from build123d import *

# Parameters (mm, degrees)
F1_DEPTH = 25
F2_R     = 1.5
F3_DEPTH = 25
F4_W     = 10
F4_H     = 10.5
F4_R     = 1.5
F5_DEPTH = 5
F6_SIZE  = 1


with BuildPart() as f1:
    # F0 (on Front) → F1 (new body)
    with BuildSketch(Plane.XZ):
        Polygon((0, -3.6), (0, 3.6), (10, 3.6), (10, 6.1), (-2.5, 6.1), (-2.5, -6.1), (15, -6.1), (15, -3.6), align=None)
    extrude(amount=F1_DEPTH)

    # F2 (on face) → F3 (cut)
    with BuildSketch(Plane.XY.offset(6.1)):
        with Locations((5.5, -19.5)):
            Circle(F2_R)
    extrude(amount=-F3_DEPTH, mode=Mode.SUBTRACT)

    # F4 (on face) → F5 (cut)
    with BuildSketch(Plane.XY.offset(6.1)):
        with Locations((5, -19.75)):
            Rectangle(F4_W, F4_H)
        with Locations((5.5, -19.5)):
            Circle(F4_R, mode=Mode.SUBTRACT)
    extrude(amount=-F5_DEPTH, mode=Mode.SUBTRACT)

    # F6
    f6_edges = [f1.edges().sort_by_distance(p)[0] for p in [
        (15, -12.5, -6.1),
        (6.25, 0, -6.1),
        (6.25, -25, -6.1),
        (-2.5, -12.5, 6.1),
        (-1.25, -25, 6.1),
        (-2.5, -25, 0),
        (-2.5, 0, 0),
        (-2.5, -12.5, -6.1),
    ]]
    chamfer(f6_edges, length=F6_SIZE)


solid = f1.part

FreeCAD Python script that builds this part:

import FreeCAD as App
import Part
import Sketcher
Q = App.Units.Quantity


def edges_at(feature, points):
    """Names of the edges that pass closest to the given points."""
    edges = feature.Shape.Edges
    near = lambda p: min(range(len(edges)), key=lambda i: edges[i].distToShape(Part.Vertex(*p))[0])
    return sorted({f"Edge{near(p) + 1}" for p in points})


def add_polygon(sketch, points):
    """Adds a closed chain of lines whose ends are joined by coincident constraints."""
    first, n = sketch.GeometryCount, len(points)
    for a, b in zip(points, points[1:] + points[:1]):
        sketch.addGeometry(Part.LineSegment(App.Vector(*a, 0), App.Vector(*b, 0)), False)
    for i in range(n):
        sketch.addConstraint(Sketcher.Constraint("Coincident", first + i, 2, first + (i + 1) % n, 1))

doc = App.newDocument("Part")
params = doc.addObject("Spreadsheet::Sheet", "Params")
for row, (alias, value) in enumerate([
    ("sketch1_width", "10 mm"),
    ("sketch1_width2", "15 mm"),
    ("sketch1_width3", "12.5 mm"),
    ("sketch1_height", "7.2 mm"),
    ("sketch1_height2", "2.5 mm"),
    ("pad1_length", "25 mm"),
    ("sketch2_diameter", "3 mm"),
    ("pocket1_length", "25 mm"),
    ("sketch3_diameter", "3 mm"),
    ("sketch3_width", "10 mm"),
    ("sketch3_height", "10.5 mm"),
    ("pocket2_length", "5 mm"),
    ("chamfer_size", "1 mm"),
], start=1):
    params.set(f"A{row}", alias)
    params.set(f"B{row}", "=" + value)
    params.setAlias(f"B{row}", alias)

body = doc.addObject("PartDesign::Body", "Body")

# Sketch on XZ plane
sketch1 = body.newObject("Sketcher::SketchObject", "Sketch")
sketch1.AttachmentSupport = (doc.getObject("XZ_Plane"), [""])
sketch1.MapMode = "FlatFace"
add_polygon(sketch1, [(0, -3.6), (0, 3.6), (10, 3.6), (10, 6.1), (-2.5, 6.1), (-2.5, -6.1), (15, -6.1), (15, -3.6)])  # lines 0-7
sketch1.addConstraint(Sketcher.Constraint("Vertical", 0))
sketch1.addConstraint(Sketcher.Constraint("Horizontal", 1))
sketch1.addConstraint(Sketcher.Constraint("Vertical", 2))
sketch1.addConstraint(Sketcher.Constraint("Horizontal", 3))
sketch1.addConstraint(Sketcher.Constraint("Vertical", 4))
sketch1.addConstraint(Sketcher.Constraint("Horizontal", 5))
sketch1.addConstraint(Sketcher.Constraint("Vertical", 6))
sketch1.addConstraint(Sketcher.Constraint("Horizontal", 7))
sketch1.addConstraint(Sketcher.Constraint("Symmetric", 0, 2, 7, 2, -1, 1))
sketch1.addConstraint(Sketcher.Constraint("Equal", 2, 6))
sketch1.addConstraint(Sketcher.Constraint("DistanceX", 1, 1, 1, 2, Q("10 mm")))
sketch1.addConstraint(Sketcher.Constraint("DistanceX", 7, 2, 7, 1, Q("15 mm")))
sketch1.addConstraint(Sketcher.Constraint("DistanceX", 3, 2, 3, 1, Q("12.5 mm")))
sketch1.addConstraint(Sketcher.Constraint("DistanceY", 0, 1, 0, 2, Q("7.2 mm")))
sketch1.addConstraint(Sketcher.Constraint("DistanceY", 2, 1, 2, 2, Q("2.5 mm")))
sketch1.setExpression("Constraints[18]", "Params.sketch1_width")
sketch1.setExpression("Constraints[19]", "Params.sketch1_width2")
sketch1.setExpression("Constraints[20]", "Params.sketch1_width3")
sketch1.setExpression("Constraints[21]", "Params.sketch1_height")
sketch1.setExpression("Constraints[22]", "Params.sketch1_height2")
pad1 = body.newObject("PartDesign::Pad", "Pad")
pad1.Profile = sketch1
pad1.setExpression("Length", "Params.pad1_length")

# Sketch on XY plane
sketch2 = body.newObject("Sketcher::SketchObject", "Sketch001")
sketch2.AttachmentSupport = (doc.getObject("XY_Plane"), [""])
sketch2.MapMode = "FlatFace"
sketch2.AttachmentOffset = App.Placement(App.Vector(0, 0, 6.1), App.Rotation())
sketch2.addGeometry(Part.Circle(App.Vector(5.5, -19.5, 0), App.Vector(0, 0, 1), 1.5), False)
sketch2.addConstraint(Sketcher.Constraint("Diameter", 0, Q("3 mm")))
sketch2.addConstraint(Sketcher.Constraint("DistanceX", -1, 1, 0, 3, Q("5.5 mm")))
sketch2.addConstraint(Sketcher.Constraint("DistanceY", 0, 3, -1, 1, Q("19.5 mm")))
sketch2.setExpression("Constraints[0]", "Params.sketch2_diameter")
pocket1 = body.newObject("PartDesign::Pocket", "Pocket")
pocket1.Profile = sketch2
pocket1.setExpression("Length", "Params.pocket1_length")

# Sketch on XY plane
sketch3 = body.newObject("Sketcher::SketchObject", "Sketch002")
sketch3.AttachmentSupport = (doc.getObject("XY_Plane"), [""])
sketch3.MapMode = "FlatFace"
sketch3.AttachmentOffset = App.Placement(App.Vector(0, 0, 6.1), App.Rotation())
add_polygon(sketch3, [(0, -14.5), (0, -25), (10, -25), (10, -14.5)])  # lines 0-3
sketch3.addGeometry(Part.Circle(App.Vector(5.5, -19.5, 0), App.Vector(0, 0, 1), 1.5), False)  # 4
sketch3.addConstraint(Sketcher.Constraint("Vertical", 0))
sketch3.addConstraint(Sketcher.Constraint("Horizontal", 1))
sketch3.addConstraint(Sketcher.Constraint("Vertical", 2))
sketch3.addConstraint(Sketcher.Constraint("Horizontal", 3))
sketch3.addConstraint(Sketcher.Constraint("PointOnObject", 0, 2, -2))
sketch3.addConstraint(Sketcher.Constraint("Diameter", 4, Q("3 mm")))
sketch3.addConstraint(Sketcher.Constraint("DistanceX", 1, 1, 1, 2, Q("10 mm")))
sketch3.addConstraint(Sketcher.Constraint("DistanceY", 0, 2, 0, 1, Q("10.5 mm")))
sketch3.addConstraint(Sketcher.Constraint("DistanceY", 0, 2, -1, 1, Q("25 mm")))
sketch3.addConstraint(Sketcher.Constraint("DistanceY", 4, 3, 2, 2, Q("5 mm")))
sketch3.addConstraint(Sketcher.Constraint("DistanceX", -1, 1, 4, 3, Q("5.5 mm")))
sketch3.setExpression("Constraints[9]", "Params.sketch3_diameter")
sketch3.setExpression("Constraints[10]", "Params.sketch3_width")
sketch3.setExpression("Constraints[11]", "Params.sketch3_height")
pocket2 = body.newObject("PartDesign::Pocket", "Pocket001")
pocket2.Profile = sketch3
pocket2.setExpression("Length", "Params.pocket2_length")
doc.recompute()

chamfer = body.newObject("PartDesign::Chamfer", "Chamfer")
chamfer.Base = (pocket2, edges_at(pocket2, [
    (15, -12.5, -6.1),
    (6.25, 0, -6.1),
    (6.25, -25, -6.1),
    (-2.5, -12.5, 6.1),
    (-1.25, -25, 6.1),
    (-2.5, -25, 0),
    (-2.5, 0, 0),
    (-2.5, -12.5, -6.1),
]))
chamfer.setExpression("Size", "Params.chamfer_size")

doc.recompute()
